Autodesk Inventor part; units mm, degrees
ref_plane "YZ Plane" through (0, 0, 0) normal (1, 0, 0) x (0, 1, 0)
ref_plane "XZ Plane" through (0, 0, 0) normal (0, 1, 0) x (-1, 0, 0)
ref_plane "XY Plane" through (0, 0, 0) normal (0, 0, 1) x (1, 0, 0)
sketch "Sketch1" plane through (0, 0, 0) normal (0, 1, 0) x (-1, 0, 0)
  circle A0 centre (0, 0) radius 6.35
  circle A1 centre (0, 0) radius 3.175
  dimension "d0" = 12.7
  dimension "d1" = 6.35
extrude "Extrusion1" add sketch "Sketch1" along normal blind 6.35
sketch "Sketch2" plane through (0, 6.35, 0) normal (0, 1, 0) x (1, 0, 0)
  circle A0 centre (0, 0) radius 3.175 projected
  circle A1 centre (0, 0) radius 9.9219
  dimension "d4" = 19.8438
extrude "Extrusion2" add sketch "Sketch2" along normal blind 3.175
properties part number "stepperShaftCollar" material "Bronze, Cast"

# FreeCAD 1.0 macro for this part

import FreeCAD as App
import Part
import Sketcher
from FreeCAD import Vector
Q = App.Units.Quantity

doc = App.newDocument("Part")
body = doc.addObject("PartDesign::Body", "Body")

sketch1 = body.newObject("Sketcher::SketchObject", "Sketch")
sketch1.AttachmentSupport = (doc.getObject("XZ_Plane"), [""])
sketch1.MapMode = "FlatFace"
sketch1.addGeometry([
    Part.Circle(Vector(0, 0, 0), Vector(0, 0, 1), 6.3),
    Part.Circle(Vector(0, 0, 0), Vector(0, 0, 1), 3.2),
], False)
sketch1.addConstraint([
    Sketcher.Constraint("Coincident", 0, 3, -1, 1),
    Sketcher.Constraint("Coincident", 1, 3, -1, 1),
    Sketcher.Constraint("Diameter", 0, Q("0.5 in")),
    Sketcher.Constraint("Diameter", 1, Q("0.25 in")),
])
pad1 = body.newObject("PartDesign::Pad", "Pad")
pad1.Profile = sketch1
pad1.Length = Q("0.25 in")
pad1.Reversed = True

sketch2 = body.newObject("Sketcher::SketchObject", "Sketch001")
sketch2.AttachmentSupport = (doc.getObject("XZ_Plane"), [""])
sketch2.MapMode = "FlatFace"
sketch2.AttachmentOffset = App.Placement(Vector(0, 0, -0.25 * 25.4), App.Rotation())
sketch2.addGeometry([
    Part.Circle(Vector(0, 0, 0), Vector(0, 0, 1), 9.9),
    Part.Circle(Vector(0, 0, 0), Vector(0, 0, 1), 3.2),
], False)
sketch2.addConstraint([
    Sketcher.Constraint("Coincident", 0, 3, -1, 1),
    Sketcher.Constraint("Coincident", 1, 3, -1, 1),
    Sketcher.Constraint("Diameter", 0, Q("0.781252 in")),
    Sketcher.Constraint("Diameter", 1, Q("0.25 in")),
])
pad2 = body.newObject("PartDesign::Pad", "Pad001")
pad2.Profile = sketch2
pad2.Length = Q("0.125 in")
pad2.Reversed = True

doc.recompute()
